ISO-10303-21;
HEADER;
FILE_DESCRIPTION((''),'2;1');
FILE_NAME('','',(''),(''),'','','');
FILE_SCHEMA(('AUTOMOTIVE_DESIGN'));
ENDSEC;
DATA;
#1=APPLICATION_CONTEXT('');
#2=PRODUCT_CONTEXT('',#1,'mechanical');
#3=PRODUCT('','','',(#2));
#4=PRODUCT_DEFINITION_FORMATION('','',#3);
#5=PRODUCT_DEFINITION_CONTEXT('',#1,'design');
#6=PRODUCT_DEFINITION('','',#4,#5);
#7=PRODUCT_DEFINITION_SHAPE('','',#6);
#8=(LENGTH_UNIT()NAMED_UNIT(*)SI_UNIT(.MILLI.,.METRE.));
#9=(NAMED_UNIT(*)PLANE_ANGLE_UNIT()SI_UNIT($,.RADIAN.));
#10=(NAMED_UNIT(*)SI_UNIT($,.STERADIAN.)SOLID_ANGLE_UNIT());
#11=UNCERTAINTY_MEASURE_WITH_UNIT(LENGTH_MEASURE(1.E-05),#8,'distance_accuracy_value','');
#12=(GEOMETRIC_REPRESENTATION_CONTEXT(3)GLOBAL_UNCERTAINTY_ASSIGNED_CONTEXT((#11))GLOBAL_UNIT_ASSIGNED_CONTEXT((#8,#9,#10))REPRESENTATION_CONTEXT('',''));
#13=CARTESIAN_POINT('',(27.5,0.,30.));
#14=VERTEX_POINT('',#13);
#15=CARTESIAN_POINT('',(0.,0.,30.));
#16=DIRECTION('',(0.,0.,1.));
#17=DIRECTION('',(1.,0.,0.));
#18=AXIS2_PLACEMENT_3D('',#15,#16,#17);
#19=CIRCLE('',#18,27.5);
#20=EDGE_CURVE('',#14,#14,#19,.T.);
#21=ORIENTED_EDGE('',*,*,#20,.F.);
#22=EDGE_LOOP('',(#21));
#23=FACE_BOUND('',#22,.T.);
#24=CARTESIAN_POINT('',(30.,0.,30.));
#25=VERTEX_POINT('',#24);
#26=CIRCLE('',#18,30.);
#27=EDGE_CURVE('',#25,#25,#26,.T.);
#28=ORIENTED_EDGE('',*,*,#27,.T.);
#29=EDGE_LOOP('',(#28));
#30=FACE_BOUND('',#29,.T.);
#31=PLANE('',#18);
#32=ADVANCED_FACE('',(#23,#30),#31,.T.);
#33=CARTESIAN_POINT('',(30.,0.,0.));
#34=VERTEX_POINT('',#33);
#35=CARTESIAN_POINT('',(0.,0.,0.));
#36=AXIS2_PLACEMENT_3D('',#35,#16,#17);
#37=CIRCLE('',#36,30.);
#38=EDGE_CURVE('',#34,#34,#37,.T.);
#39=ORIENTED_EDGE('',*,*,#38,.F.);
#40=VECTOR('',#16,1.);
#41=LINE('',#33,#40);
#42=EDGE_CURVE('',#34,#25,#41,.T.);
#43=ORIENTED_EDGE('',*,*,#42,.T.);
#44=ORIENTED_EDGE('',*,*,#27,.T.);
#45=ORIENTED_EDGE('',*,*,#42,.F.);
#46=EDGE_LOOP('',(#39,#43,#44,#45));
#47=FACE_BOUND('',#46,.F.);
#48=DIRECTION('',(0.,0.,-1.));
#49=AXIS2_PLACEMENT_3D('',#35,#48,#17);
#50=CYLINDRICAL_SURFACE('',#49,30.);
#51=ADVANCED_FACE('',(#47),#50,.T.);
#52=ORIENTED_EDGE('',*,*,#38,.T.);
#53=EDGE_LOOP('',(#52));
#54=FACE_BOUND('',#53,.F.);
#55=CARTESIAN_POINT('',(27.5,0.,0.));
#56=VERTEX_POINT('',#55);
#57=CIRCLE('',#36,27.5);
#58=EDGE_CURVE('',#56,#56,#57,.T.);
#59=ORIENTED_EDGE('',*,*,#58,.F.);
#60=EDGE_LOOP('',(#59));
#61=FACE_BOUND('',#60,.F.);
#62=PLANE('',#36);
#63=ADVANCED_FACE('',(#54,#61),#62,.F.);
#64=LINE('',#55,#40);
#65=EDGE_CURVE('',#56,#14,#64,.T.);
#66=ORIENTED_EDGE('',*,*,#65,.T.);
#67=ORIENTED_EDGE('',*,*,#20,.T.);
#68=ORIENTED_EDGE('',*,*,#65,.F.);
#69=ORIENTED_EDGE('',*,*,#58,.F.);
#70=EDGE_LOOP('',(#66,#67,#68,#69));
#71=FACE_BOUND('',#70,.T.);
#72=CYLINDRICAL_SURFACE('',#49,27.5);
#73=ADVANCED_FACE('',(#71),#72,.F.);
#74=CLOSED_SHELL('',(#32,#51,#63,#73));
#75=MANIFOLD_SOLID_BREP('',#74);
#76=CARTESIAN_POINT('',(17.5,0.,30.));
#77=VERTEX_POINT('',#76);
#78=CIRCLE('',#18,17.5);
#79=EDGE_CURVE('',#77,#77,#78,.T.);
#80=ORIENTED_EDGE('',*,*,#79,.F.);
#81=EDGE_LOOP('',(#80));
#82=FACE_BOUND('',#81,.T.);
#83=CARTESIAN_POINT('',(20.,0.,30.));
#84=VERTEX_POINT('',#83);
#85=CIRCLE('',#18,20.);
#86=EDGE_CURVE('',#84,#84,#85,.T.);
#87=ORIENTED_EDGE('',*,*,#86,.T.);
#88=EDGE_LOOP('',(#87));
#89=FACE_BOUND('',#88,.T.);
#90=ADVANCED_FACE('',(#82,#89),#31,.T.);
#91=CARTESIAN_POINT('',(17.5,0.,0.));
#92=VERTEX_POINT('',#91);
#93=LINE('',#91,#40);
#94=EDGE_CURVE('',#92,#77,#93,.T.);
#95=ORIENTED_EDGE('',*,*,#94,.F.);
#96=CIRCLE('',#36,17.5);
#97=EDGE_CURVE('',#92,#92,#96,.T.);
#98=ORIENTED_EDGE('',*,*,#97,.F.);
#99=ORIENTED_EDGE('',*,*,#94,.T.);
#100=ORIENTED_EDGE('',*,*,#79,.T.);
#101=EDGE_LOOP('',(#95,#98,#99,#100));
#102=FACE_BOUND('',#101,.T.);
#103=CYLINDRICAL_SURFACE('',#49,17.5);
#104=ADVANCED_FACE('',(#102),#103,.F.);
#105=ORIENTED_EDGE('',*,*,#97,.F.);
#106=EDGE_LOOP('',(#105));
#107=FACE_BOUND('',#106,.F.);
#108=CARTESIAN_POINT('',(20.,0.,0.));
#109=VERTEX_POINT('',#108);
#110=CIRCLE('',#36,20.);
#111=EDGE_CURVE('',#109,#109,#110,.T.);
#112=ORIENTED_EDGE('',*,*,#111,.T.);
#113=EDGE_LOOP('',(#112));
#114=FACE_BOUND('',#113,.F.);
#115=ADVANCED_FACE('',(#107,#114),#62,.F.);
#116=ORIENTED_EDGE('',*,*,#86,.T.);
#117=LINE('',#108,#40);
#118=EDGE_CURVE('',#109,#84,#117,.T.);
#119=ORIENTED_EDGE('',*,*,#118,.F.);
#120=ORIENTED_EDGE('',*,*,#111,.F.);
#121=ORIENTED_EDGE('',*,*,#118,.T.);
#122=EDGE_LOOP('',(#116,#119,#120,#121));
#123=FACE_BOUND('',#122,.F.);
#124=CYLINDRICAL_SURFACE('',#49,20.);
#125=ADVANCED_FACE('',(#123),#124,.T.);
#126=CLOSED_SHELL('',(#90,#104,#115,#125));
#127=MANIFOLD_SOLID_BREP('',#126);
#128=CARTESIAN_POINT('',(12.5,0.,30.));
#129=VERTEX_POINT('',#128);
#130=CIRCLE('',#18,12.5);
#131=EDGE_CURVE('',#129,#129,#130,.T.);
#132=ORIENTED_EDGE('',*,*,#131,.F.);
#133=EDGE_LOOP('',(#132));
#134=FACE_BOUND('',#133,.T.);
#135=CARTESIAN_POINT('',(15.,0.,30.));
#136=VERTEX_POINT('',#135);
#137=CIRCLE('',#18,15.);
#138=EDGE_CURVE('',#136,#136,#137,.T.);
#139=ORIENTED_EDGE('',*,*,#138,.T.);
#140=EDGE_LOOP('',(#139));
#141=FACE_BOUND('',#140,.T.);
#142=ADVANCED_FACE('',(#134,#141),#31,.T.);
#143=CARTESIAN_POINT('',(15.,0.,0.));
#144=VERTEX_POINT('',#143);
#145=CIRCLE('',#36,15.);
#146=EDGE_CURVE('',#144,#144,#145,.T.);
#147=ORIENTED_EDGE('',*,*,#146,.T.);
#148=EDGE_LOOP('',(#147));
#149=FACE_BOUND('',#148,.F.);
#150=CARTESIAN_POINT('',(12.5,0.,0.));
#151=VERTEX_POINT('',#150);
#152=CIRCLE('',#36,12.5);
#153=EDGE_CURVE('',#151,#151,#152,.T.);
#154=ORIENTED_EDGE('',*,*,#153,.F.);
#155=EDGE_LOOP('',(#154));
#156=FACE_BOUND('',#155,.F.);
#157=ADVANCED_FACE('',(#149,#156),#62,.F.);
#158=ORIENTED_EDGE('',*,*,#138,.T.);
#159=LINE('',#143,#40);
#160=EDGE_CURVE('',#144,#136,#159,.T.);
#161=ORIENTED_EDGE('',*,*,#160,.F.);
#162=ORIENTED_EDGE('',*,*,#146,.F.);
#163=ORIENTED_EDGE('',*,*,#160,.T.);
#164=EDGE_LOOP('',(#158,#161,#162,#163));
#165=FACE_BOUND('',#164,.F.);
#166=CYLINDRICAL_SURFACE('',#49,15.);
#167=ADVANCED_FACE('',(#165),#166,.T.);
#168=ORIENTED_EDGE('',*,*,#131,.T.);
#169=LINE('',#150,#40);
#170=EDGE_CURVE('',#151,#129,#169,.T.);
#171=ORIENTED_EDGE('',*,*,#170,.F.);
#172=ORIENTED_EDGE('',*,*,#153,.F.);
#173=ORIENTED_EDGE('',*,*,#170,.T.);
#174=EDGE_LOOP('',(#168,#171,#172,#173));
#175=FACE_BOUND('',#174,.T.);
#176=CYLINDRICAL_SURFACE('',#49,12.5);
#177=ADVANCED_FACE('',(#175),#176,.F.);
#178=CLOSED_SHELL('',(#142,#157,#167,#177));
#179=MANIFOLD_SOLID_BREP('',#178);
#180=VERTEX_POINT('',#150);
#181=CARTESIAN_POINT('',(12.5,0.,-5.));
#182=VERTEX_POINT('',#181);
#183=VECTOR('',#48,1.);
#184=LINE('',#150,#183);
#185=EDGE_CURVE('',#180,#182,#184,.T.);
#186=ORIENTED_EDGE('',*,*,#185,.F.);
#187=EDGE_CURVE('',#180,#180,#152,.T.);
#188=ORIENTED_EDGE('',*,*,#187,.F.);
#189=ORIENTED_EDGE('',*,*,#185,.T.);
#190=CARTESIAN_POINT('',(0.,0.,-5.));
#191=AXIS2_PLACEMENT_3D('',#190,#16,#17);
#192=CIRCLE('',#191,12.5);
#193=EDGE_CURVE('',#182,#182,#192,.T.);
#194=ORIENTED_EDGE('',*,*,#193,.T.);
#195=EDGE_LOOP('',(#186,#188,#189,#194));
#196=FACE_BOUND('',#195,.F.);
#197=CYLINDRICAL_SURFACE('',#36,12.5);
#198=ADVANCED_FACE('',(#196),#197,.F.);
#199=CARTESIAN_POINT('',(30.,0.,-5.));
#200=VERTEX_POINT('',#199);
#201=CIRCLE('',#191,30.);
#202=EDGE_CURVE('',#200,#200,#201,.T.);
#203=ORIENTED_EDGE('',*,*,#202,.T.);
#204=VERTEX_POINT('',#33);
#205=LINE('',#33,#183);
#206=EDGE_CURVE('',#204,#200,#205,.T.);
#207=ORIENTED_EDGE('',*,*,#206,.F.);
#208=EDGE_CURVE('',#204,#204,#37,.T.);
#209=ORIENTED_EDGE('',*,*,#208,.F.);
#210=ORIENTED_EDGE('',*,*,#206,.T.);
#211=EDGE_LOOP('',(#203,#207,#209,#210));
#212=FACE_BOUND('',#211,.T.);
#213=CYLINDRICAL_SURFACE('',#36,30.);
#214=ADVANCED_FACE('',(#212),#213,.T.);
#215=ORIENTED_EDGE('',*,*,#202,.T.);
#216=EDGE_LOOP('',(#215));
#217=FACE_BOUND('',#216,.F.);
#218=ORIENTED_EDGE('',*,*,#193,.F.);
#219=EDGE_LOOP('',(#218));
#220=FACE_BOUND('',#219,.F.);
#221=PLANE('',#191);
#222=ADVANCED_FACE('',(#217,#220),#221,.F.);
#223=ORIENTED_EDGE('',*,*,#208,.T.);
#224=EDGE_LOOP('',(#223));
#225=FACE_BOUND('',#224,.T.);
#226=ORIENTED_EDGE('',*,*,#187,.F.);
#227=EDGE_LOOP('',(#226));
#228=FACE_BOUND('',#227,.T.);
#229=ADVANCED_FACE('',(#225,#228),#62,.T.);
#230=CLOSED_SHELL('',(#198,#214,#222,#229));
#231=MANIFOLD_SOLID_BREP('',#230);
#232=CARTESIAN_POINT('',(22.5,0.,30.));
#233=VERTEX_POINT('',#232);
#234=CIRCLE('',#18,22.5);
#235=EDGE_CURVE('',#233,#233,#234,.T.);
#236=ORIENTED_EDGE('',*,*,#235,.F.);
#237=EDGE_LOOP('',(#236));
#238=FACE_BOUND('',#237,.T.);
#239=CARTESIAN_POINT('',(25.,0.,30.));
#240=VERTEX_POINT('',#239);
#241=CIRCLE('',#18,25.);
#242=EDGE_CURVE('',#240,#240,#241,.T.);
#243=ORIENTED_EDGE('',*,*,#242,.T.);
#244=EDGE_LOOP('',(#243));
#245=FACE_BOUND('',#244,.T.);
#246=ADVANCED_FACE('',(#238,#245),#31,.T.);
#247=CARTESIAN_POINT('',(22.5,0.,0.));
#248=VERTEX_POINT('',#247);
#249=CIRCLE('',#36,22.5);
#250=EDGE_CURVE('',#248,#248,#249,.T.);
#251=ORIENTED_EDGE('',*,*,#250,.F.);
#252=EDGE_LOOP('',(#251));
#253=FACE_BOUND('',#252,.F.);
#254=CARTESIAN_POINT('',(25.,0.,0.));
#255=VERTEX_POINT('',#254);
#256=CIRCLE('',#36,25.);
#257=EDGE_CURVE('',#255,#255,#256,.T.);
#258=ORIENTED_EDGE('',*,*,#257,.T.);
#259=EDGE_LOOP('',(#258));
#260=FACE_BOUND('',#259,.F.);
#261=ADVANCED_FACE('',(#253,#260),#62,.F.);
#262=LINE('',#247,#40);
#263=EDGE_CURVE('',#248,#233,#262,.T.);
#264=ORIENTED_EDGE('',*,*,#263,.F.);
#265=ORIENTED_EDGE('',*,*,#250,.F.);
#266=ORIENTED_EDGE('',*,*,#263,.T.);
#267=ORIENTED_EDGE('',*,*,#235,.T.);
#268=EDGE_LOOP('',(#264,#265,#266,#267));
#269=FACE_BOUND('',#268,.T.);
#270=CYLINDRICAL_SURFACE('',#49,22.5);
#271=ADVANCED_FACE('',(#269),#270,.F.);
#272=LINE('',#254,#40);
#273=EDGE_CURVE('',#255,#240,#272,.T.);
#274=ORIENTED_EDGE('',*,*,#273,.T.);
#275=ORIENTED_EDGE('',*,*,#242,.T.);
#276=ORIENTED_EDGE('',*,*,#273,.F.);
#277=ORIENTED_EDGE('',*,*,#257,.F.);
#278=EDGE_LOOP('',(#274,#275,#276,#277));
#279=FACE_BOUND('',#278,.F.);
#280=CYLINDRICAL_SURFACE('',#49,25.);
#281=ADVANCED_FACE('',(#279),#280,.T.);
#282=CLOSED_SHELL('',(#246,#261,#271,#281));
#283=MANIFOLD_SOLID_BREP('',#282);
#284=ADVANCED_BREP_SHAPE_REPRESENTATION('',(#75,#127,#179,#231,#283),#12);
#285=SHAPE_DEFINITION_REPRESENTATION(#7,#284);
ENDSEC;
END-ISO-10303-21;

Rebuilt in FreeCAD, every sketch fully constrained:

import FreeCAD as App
import Part
import Sketcher

V = App.Vector
Q = App.Units.Quantity

doc = App.newDocument("Part")
params = doc.addObject("Spreadsheet::Sheet", "Params")
for row, (alias, value) in enumerate([
    ("sketch1_diameter", "30 mm"),
    ("sketch1_diameter2", "25 mm"),
    ("pad1_length", "30 mm"),
    ("sketch2_diameter", "40 mm"),
    ("sketch2_diameter2", "35 mm"),
    ("pad2_length", "30 mm"),
    ("sketch3_diameter", "50 mm"),
    ("sketch3_diameter2", "45 mm"),
    ("pad3_length", "30 mm"),
    ("sketch4_diameter", "60 mm"),
    ("sketch4_diameter2", "55 mm"),
    ("pad4_length", "30 mm"),
    ("sketch5_diameter", "60 mm"),
    ("sketch5_diameter2", "25 mm"),
    ("pad5_length", "5 mm"),
], start=1):
    params.set(f"A{row}", alias)
    params.set(f"B{row}", "=" + value)
    params.setAlias(f"B{row}", alias)

body = doc.addObject("PartDesign::Body", "Body")

sketch1 = body.newObject("Sketcher::SketchObject", "Sketch")
sketch1.AttachmentSupport = (doc.getObject("XY_Plane"), [""])
sketch1.MapMode = "FlatFace"
sketch1.addGeometry([
    Part.Circle(V(0, 0, 0), V(0, 0, 1), 15),
    Part.Circle(V(0, 0, 0), V(0, 0, 1), 12.5),
], False)
sketch1.addConstraint([
    Sketcher.Constraint("Coincident", 0, 3, -1, 1),
    Sketcher.Constraint("Coincident", 1, 3, -1, 1),
    Sketcher.Constraint("Diameter", 0, Q("30 mm")),
    Sketcher.Constraint("Diameter", 1, Q("25 mm")),
])
sketch1.setExpression("Constraints[2]", "Params.sketch1_diameter")
sketch1.setExpression("Constraints[3]", "Params.sketch1_diameter2")
pad1 = body.newObject("PartDesign::Pad", "Pad")
pad1.Profile = sketch1
pad1.setExpression("Length", "Params.pad1_length")
body2 = doc.addObject("PartDesign::Body", "Body001")

sketch2 = body2.newObject("Sketcher::SketchObject", "Sketch001")
sketch2.AttachmentSupport = (doc.getObject("XY_Plane001"), [""])
sketch2.MapMode = "FlatFace"
sketch2.addGeometry([
    Part.Circle(V(0, 0, 0), V(0, 0, 1), 20),
    Part.Circle(V(0, 0, 0), V(0, 0, 1), 17.5),
], False)
sketch2.addConstraint([
    Sketcher.Constraint("Coincident", 0, 3, -1, 1),
    Sketcher.Constraint("Coincident", 1, 3, -1, 1),
    Sketcher.Constraint("Diameter", 0, Q("40 mm")),
    Sketcher.Constraint("Diameter", 1, Q("35 mm")),
])
sketch2.setExpression("Constraints[2]", "Params.sketch2_diameter")
sketch2.setExpression("Constraints[3]", "Params.sketch2_diameter2")
pad2 = body2.newObject("PartDesign::Pad", "Pad001")
pad2.Profile = sketch2
pad2.setExpression("Length", "Params.pad2_length")
body3 = doc.addObject("PartDesign::Body", "Body002")

sketch3 = body3.newObject("Sketcher::SketchObject", "Sketch002")
sketch3.AttachmentSupport = (doc.getObject("XY_Plane002"), [""])
sketch3.MapMode = "FlatFace"
sketch3.addGeometry([
    Part.Circle(V(0, 0, 0), V(0, 0, 1), 25),
    Part.Circle(V(0, 0, 0), V(0, 0, 1), 22.5),
], False)
sketch3.addConstraint([
    Sketcher.Constraint("Coincident", 0, 3, -1, 1),
    Sketcher.Constraint("Coincident", 1, 3, -1, 1),
    Sketcher.Constraint("Diameter", 0, Q("50 mm")),
    Sketcher.Constraint("Diameter", 1, Q("45 mm")),
])
sketch3.setExpression("Constraints[2]", "Params.sketch3_diameter")
sketch3.setExpression("Constraints[3]", "Params.sketch3_diameter2")
pad3 = body3.newObject("PartDesign::Pad", "Pad002")
pad3.Profile = sketch3
pad3.setExpression("Length", "Params.pad3_length")
body4 = doc.addObject("PartDesign::Body", "Body003")

sketch4 = body4.newObject("Sketcher::SketchObject", "Sketch003")
sketch4.AttachmentSupport = (doc.getObject("XY_Plane003"), [""])
sketch4.MapMode = "FlatFace"
sketch4.addGeometry([
    Part.Circle(V(0, 0, 0), V(0, 0, 1), 30),
    Part.Circle(V(0, 0, 0), V(0, 0, 1), 27.5),
], False)
sketch4.addConstraint([
    Sketcher.Constraint("Coincident", 0, 3, -1, 1),
    Sketcher.Constraint("Coincident", 1, 3, -1, 1),
    Sketcher.Constraint("Diameter", 0, Q("60 mm")),
    Sketcher.Constraint("Diameter", 1, Q("55 mm")),
])
sketch4.setExpression("Constraints[2]", "Params.sketch4_diameter")
sketch4.setExpression("Constraints[3]", "Params.sketch4_diameter2")
pad4 = body4.newObject("PartDesign::Pad", "Pad003")
pad4.Profile = sketch4
pad4.setExpression("Length", "Params.pad4_length")
body5 = doc.addObject("PartDesign::Body", "Body004")

sketch5 = body5.newObject("Sketcher::SketchObject", "Sketch004")
sketch5.AttachmentSupport = (doc.getObject("XY_Plane004"), [""])
sketch5.MapMode = "FlatFace"
sketch5.addGeometry([
    Part.Circle(V(0, 0, 0), V(0, 0, 1), 30),
    Part.Circle(V(0, 0, 0), V(0, 0, 1), 12.5),
], False)
sketch5.addConstraint([
    Sketcher.Constraint("Coincident", 0, 3, -1, 1),
    Sketcher.Constraint("Coincident", 1, 3, -1, 1),
    Sketcher.Constraint("Diameter", 0, Q("60 mm")),
    Sketcher.Constraint("Diameter", 1, Q("25 mm")),
])
sketch5.setExpression("Constraints[2]", "Params.sketch5_diameter")
sketch5.setExpression("Constraints[3]", "Params.sketch5_diameter2")
pad5 = body5.newObject("PartDesign::Pad", "Pad004")
pad5.Profile = sketch5
pad5.setExpression("Length", "Params.pad5_length")
pad5.Reversed = True

doc.recompute()
